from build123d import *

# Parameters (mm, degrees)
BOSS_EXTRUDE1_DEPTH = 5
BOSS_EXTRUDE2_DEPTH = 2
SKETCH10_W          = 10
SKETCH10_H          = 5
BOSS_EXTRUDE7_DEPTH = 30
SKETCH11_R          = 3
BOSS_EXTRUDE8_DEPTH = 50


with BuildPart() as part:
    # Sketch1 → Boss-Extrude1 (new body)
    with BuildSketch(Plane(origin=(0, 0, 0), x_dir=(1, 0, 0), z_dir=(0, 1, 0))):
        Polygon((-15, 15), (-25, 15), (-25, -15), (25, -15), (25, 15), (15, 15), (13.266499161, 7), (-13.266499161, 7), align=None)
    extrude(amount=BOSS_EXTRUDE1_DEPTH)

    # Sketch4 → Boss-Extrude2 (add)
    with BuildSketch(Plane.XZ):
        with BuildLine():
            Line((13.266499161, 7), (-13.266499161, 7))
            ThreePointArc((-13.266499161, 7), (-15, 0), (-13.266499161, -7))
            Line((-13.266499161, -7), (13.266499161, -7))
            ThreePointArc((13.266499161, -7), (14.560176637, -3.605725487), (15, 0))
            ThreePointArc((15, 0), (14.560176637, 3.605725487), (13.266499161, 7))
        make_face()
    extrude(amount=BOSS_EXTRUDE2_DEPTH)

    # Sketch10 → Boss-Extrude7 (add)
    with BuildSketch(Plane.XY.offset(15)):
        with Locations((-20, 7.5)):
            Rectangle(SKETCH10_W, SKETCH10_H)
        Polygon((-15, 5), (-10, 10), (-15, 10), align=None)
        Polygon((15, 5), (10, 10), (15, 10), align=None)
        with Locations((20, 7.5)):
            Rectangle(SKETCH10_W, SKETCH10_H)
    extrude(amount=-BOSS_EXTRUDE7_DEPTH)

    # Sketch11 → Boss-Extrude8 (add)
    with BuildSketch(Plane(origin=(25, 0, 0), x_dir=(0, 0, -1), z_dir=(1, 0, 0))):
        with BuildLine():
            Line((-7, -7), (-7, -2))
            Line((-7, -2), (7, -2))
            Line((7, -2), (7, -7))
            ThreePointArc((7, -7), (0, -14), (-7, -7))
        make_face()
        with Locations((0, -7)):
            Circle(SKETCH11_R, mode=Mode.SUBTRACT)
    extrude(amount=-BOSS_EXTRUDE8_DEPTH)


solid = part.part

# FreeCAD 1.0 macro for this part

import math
import FreeCAD as App
import Part
import Sketcher
from FreeCAD import Vector


def add_polygon(sketch, points):
    """Adds a closed chain of lines whose ends are joined by coincident constraints."""
    first, n = sketch.GeometryCount, len(points)
    for a, b in zip(points, points[1:] + points[:1]):
        sketch.addGeometry(Part.LineSegment(App.Vector(*a, 0), App.Vector(*b, 0)), False)
    for i in range(n):
        sketch.addConstraint(Sketcher.Constraint("Coincident", first + i, 2, first + (i + 1) % n, 1))

doc = App.newDocument("Part")
body = doc.addObject("PartDesign::Body", "Body")

# Sketch on XZ plane
sketch1 = doc.addObject("Sketcher::SketchObject", "Sketch")
body.addObject(sketch1)
sketch1.AttachmentSupport = (doc.XZ_Plane, [""])
sketch1.MapMode = "FlatFace"
add_polygon(sketch1, [(-15, -15), (-25, -15), (-25, 15), (25, 15), (25, -15), (15, -15), (13, -7), (-13, -7)])  # lines 0-7
sketch1.addConstraint(Sketcher.Constraint("Horizontal", 0))
sketch1.addConstraint(Sketcher.Constraint("Vertical", 1))
sketch1.addConstraint(Sketcher.Constraint("Horizontal", 2))
sketch1.addConstraint(Sketcher.Constraint("Vertical", 3))
sketch1.addConstraint(Sketcher.Constraint("Horizontal", 4))
sketch1.addConstraint(Sketcher.Constraint("Horizontal", 6))
sketch1.addConstraint(Sketcher.Constraint("Symmetric", 0, 2, 2, 2, -1, 1))
sketch1.addConstraint(Sketcher.Constraint("Symmetric", 4, 2, 7, 2, -2))
sketch1.addConstraint(Sketcher.Constraint("Equal", 5, 7))
sketch1.addConstraint(Sketcher.Constraint("DistanceX", 0, 2, 0, 1, 10.0))
sketch1.addConstraint(Sketcher.Constraint("DistanceX", 2, 1, 2, 2, 50.0))
sketch1.addConstraint(Sketcher.Constraint("DistanceY", 1, 1, 1, 2, 30.0))
sketch1.addConstraint(Sketcher.Constraint("DistanceY", 5, 2, -1, 1, 7.0))
sketch1.addConstraint(Sketcher.Constraint("DistanceX", 6, 2, 6, 1, 26.532998))
pad1 = doc.addObject("PartDesign::Pad", "Pad")
body.addObject(pad1)
pad1.Profile = sketch1
pad1.Length = 5
pad1.Reversed = True

# Sketch on XZ plane
sketch2 = doc.addObject("Sketcher::SketchObject", "Sketch001")
body.addObject(sketch2)
sketch2.AttachmentSupport = (doc.XZ_Plane, [""])
sketch2.MapMode = "FlatFace"
sketch2.addGeometry(Part.LineSegment(Vector(13, 7, 0), Vector(-13, 7, 0)), False)
sketch2.addGeometry(Part.ArcOfCircle(Part.Circle(Vector(0, 0, 0), Vector(0, 0, 1), 15), math.radians(152), math.radians(208)), False)
sketch2.addGeometry(Part.LineSegment(Vector(-13, -7, 0), Vector(13, -7, 0)), False)
sketch2.addGeometry(Part.ArcOfCircle(Part.Circle(Vector(0, 0, 0), Vector(0, 0, 1), 15), math.radians(-28), math.radians(0)), False)
sketch2.addGeometry(Part.ArcOfCircle(Part.Circle(Vector(0, 0, 0), Vector(0, 0, 1), 15), math.radians(0), math.radians(28)), False)
sketch2.addConstraint(Sketcher.Constraint("Coincident", 0, 2, 1, 1))
sketch2.addConstraint(Sketcher.Constraint("Coincident", 1, 2, 2, 1))
sketch2.addConstraint(Sketcher.Constraint("Coincident", 2, 2, 3, 1))
sketch2.addConstraint(Sketcher.Constraint("Tangent", 3, 2, 4, 1))
sketch2.addConstraint(Sketcher.Constraint("Coincident", 4, 2, 0, 1))
sketch2.addConstraint(Sketcher.Constraint("Horizontal", 0))
sketch2.addConstraint(Sketcher.Constraint("Horizontal", 2))
sketch2.addConstraint(Sketcher.Constraint("Coincident", 1, 3, -1, 1))
sketch2.addConstraint(Sketcher.Constraint("Coincident", 3, 3, -1, 1))
sketch2.addConstraint(Sketcher.Constraint("Equal", 1, 3))
sketch2.addConstraint(Sketcher.Constraint("Equal", 3, 4))
sketch2.addConstraint(Sketcher.Constraint("PointOnObject", 3, 2, -1))
sketch2.addConstraint(Sketcher.Constraint("Vertical", 0, 2, 1, 2))
sketch2.addConstraint(Sketcher.Constraint("Radius", 1, 15.0))
sketch2.addConstraint(Sketcher.Constraint("DistanceY", -1, 1, 0, 2, 7.0))
pad2 = doc.addObject("PartDesign::Pad", "Pad001")
body.addObject(pad2)
pad2.Profile = sketch2
pad2.Length = 2

# Sketch on XY plane
sketch3 = doc.addObject("Sketcher::SketchObject", "Sketch002")
body.addObject(sketch3)
sketch3.AttachmentSupport = (doc.XY_Plane, [""])
sketch3.MapMode = "FlatFace"
sketch3.AttachmentOffset = App.Placement(Vector(0, 0, 15), App.Rotation())
add_polygon(sketch3, [(-25, 10), (-25, 5), (-15, 5), (-10, 10)])  # lines 0-3
add_polygon(sketch3, [(10, 10), (15, 5), (25, 5), (25, 10)])  # lines 4-7
sketch3.addConstraint(Sketcher.Constraint("Vertical", 0))
sketch3.addConstraint(Sketcher.Constraint("Horizontal", 1))
sketch3.addConstraint(Sketcher.Constraint("Horizontal", 3))
sketch3.addConstraint(Sketcher.Constraint("Horizontal", 5))
sketch3.addConstraint(Sketcher.Constraint("Vertical", 6))
sketch3.addConstraint(Sketcher.Constraint("Horizontal", 7))
sketch3.addConstraint(Sketcher.Constraint("Symmetric", 1, 2, 4, 2, -2))
sketch3.addConstraint(Sketcher.Constraint("Symmetric", 3, 2, 6, 2, -2))
sketch3.addConstraint(Sketcher.Constraint("Perpendicular", 2, 4))
sketch3.addConstraint(Sketcher.Constraint("Equal", 3, 7))
sketch3.addConstraint(Sketcher.Constraint("DistanceX", 1, 1, 1, 2, 10.0))
sketch3.addConstraint(Sketcher.Constraint("DistanceX", 3, 2, 3, 1, 15.0))
sketch3.addConstraint(Sketcher.Constraint("DistanceX", 0, 2, -1, 1, 25.0))
sketch3.addConstraint(Sketcher.Constraint("DistanceY", -1, 1, 0, 2, 5.0))
pad3 = doc.addObject("PartDesign::Pad", "Pad002")
body.addObject(pad3)
pad3.Profile = sketch3
pad3.Length = 30
pad3.Reversed = True

# Sketch on YZ plane
sketch4 = doc.addObject("Sketcher::SketchObject", "Sketch003")
body.addObject(sketch4)
sketch4.AttachmentSupport = (doc.YZ_Plane, [""])
sketch4.MapMode = "FlatFace"
sketch4.AttachmentOffset = App.Placement(Vector(0, 0, 25), App.Rotation())
sketch4.addGeometry(Part.LineSegment(Vector(-2, 7, 0), Vector(-7, 7, 0)), False)
sketch4.addGeometry(Part.ArcOfCircle(Part.Circle(Vector(-7, 0, 0), Vector(0, 0, 1), 7), math.radians(90), math.radians(270)), False)
sketch4.addGeometry(Part.LineSegment(Vector(-7, -7, 0), Vector(-2, -7, 0)), False)
sketch4.addGeometry(Part.LineSegment(Vector(-2, -7, 0), Vector(-2, 7, 0)), False)
sketch4.addGeometry(Part.Circle(Vector(-7, 0, 0), Vector(0, 0, 1), 3), False)
sketch4.addConstraint(Sketcher.Constraint("Tangent", 0, 2, 1, 1))
sketch4.addConstraint(Sketcher.Constraint("Tangent", 1, 2, 2, 1))
sketch4.addConstraint(Sketcher.Constraint("Coincident", 2, 2, 3, 1))
sketch4.addConstraint(Sketcher.Constraint("Coincident", 3, 2, 0, 1))
sketch4.addConstraint(Sketcher.Constraint("Horizontal", 0))
sketch4.addConstraint(Sketcher.Constraint("Horizontal", 2))
sketch4.addConstraint(Sketcher.Constraint("Vertical", 3))
sketch4.addConstraint(Sketcher.Constraint("Coincident", 4, 3, 1, 3))
sketch4.addConstraint(Sketcher.Constraint("PointOnObject", 1, 3, -1))
sketch4.addConstraint(Sketcher.Constraint("Diameter", 4, 6.0))
sketch4.addConstraint(Sketcher.Constraint("Radius", 1, 7.0))
sketch4.addConstraint(Sketcher.Constraint("DistanceX", 0, 2, 0, 1, 5.0))
sketch4.addConstraint(Sketcher.Constraint("DistanceX", 1, 3, -1, 1, 7.0))
pad4 = doc.addObject("PartDesign::Pad", "Pad003")
body.addObject(pad4)
pad4.Profile = sketch4
pad4.Length = 50
pad4.Reversed = True

doc.recompute()
